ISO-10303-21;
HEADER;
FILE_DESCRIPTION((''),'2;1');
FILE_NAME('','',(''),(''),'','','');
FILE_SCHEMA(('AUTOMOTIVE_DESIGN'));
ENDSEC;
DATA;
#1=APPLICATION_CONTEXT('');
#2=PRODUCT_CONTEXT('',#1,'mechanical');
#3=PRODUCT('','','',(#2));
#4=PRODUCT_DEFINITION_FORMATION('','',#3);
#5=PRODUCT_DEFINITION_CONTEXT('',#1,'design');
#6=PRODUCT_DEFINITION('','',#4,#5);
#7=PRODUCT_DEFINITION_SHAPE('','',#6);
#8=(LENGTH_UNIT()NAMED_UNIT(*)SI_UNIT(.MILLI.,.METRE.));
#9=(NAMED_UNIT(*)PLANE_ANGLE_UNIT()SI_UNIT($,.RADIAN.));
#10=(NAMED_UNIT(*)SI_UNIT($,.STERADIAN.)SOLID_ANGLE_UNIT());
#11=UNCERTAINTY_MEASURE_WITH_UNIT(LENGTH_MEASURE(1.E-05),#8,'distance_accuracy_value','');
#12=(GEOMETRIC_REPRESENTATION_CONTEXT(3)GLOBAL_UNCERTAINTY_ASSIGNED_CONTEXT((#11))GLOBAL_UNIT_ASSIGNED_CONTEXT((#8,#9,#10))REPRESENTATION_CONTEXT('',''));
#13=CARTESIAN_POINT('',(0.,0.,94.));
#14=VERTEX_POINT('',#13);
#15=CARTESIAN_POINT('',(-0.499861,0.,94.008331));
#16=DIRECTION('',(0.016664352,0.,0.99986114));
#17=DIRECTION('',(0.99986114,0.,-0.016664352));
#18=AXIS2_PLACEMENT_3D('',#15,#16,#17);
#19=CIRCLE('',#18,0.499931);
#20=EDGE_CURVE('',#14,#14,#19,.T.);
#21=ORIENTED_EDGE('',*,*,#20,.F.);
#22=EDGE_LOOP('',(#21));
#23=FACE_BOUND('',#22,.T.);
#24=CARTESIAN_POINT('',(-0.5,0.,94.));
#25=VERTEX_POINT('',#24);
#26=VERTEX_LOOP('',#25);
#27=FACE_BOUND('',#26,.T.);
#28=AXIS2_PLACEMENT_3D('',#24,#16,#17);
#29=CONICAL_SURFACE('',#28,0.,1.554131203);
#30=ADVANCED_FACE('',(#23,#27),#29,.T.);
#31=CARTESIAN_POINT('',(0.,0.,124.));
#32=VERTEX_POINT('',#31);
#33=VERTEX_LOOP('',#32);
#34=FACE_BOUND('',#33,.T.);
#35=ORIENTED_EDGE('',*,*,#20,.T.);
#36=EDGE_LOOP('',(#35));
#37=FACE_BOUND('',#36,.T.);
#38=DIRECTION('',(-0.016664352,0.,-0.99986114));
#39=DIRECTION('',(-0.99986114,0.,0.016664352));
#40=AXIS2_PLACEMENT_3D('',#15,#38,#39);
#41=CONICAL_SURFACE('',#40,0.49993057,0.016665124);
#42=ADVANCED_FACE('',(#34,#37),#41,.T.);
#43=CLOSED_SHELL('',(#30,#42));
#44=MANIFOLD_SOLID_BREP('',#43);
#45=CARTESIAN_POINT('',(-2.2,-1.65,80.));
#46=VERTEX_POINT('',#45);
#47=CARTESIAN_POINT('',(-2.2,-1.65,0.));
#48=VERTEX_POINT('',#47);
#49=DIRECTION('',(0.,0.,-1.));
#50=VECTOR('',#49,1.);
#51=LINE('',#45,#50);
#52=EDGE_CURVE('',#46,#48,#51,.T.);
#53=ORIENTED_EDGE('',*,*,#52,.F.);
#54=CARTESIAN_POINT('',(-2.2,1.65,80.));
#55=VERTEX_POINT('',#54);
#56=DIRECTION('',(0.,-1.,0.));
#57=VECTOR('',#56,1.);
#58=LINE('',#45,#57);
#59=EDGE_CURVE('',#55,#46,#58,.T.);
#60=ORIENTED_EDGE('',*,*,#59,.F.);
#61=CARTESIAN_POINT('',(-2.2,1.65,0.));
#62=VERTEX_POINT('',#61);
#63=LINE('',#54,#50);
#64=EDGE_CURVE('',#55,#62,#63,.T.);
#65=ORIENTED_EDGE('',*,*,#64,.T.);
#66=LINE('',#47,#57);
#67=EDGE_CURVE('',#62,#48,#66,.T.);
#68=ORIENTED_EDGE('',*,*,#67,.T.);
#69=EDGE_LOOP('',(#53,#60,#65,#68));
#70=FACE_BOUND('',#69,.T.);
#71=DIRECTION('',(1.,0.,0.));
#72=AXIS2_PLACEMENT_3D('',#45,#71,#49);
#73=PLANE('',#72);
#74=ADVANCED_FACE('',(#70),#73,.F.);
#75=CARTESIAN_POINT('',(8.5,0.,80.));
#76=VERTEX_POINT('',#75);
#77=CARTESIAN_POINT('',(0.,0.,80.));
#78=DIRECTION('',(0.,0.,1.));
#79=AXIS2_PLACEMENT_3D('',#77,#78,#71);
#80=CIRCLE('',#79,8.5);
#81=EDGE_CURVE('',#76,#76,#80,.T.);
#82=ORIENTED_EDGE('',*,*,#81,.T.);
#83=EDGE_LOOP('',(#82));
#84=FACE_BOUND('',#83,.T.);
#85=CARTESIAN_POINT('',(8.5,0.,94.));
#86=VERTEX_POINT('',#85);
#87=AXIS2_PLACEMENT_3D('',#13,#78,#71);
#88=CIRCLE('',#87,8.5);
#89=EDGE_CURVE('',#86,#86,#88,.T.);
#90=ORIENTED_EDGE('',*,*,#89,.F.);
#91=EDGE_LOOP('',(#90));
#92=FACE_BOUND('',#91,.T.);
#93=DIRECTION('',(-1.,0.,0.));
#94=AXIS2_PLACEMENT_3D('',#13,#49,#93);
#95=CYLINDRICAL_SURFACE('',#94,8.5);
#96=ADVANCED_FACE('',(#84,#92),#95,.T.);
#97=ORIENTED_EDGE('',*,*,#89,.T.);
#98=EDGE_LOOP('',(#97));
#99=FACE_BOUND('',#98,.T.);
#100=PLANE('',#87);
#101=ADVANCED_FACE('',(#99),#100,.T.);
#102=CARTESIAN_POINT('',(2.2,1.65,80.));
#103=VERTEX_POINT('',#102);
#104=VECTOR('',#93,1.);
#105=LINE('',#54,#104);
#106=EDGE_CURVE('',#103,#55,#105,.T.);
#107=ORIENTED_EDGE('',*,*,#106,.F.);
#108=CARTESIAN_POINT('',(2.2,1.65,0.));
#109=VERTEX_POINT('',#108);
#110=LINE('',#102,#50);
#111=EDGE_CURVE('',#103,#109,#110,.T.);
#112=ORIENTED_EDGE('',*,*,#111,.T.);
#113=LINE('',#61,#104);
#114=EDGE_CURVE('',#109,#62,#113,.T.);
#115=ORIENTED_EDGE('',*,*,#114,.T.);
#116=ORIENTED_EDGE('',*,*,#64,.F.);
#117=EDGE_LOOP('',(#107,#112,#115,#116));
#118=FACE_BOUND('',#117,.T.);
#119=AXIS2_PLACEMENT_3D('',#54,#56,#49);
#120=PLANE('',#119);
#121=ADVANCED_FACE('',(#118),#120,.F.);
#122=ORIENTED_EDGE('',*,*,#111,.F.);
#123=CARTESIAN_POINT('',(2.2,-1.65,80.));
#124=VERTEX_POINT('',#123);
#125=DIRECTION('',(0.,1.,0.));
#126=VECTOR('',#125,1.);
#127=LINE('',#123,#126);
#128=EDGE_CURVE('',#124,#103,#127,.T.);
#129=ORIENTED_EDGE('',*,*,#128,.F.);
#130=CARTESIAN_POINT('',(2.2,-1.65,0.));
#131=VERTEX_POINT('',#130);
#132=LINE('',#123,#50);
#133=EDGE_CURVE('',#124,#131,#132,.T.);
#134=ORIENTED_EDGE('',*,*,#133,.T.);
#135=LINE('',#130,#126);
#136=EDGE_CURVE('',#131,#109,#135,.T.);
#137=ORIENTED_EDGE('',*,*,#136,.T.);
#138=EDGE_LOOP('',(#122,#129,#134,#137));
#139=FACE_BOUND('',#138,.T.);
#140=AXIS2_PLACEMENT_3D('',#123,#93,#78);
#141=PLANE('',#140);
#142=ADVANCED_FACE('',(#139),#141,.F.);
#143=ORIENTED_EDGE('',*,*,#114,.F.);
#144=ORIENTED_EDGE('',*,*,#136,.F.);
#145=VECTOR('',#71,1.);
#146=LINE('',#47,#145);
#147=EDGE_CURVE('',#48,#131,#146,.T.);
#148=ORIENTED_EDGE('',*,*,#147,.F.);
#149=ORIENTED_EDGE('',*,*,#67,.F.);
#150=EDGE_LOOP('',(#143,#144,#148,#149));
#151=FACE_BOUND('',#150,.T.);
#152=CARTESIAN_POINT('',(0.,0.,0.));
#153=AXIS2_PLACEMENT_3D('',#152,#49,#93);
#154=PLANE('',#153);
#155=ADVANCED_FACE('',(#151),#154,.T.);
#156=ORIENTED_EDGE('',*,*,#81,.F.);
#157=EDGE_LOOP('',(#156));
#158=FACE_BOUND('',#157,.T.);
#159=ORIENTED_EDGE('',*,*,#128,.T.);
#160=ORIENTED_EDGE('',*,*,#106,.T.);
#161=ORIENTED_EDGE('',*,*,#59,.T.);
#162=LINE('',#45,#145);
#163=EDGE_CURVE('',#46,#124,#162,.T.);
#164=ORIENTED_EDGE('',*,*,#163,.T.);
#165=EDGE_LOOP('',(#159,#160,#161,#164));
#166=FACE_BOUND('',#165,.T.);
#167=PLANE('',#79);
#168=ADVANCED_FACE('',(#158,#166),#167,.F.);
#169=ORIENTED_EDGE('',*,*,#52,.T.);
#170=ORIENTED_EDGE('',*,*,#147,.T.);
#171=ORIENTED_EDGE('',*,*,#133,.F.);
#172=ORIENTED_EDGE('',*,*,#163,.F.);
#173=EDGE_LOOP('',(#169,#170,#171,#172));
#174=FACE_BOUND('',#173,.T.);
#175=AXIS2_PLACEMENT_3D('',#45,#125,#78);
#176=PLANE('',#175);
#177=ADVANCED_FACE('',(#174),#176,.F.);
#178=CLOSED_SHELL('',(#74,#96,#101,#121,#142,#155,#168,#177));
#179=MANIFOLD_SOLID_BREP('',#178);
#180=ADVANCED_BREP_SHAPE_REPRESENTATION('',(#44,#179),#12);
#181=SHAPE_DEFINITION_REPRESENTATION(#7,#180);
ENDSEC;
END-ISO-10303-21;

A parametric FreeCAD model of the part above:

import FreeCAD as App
import Part
import Sketcher
from FreeCAD import Vector


def add_polygon(sketch, points):
    """Adds a closed chain of lines whose ends are joined by coincident constraints."""
    first, n = sketch.GeometryCount, len(points)
    for a, b in zip(points, points[1:] + points[:1]):
        sketch.addGeometry(Part.LineSegment(App.Vector(*a, 0), App.Vector(*b, 0)), False)
    for i in range(n):
        sketch.addConstraint(Sketcher.Constraint("Coincident", first + i, 2, first + (i + 1) % n, 1))

doc = App.newDocument("Part")
params = doc.addObject("Spreadsheet::Sheet", "Params")
for row, (alias, value) in enumerate([
    ("sketch1_width", "4.4 mm"),
    ("sketch1_height", "3.3 mm"),
    ("pad1_length", "80 mm"),
    ("sketch2_diameter", "17 mm"),
    ("pad2_length", "14 mm"),
    ("sketch3_height", "30 mm"),
    ("sketch3_width", "0.5 mm"),
    ("revolution_angle", "360 deg"),
], start=1):
    params.set(f"A{row}", alias)
    params.set(f"B{row}", "=" + value)
    params.setAlias(f"B{row}", alias)

body = doc.addObject("PartDesign::Body", "Body")

sketch1 = doc.addObject("Sketcher::SketchObject", "Sketch")
body.addObject(sketch1)
sketch1.AttachmentSupport = (doc.XY_Plane, [""])
sketch1.MapMode = "FlatFace"
add_polygon(sketch1, [(-2.2, 1.6), (-2.2, -1.6), (2.2, -1.6), (2.2, 1.6)])
sketch1.addConstraint([
    Sketcher.Constraint("Vertical", 0),
    Sketcher.Constraint("Horizontal", 1),
    Sketcher.Constraint("Vertical", 2),
    Sketcher.Constraint("Horizontal", 3),
    Sketcher.Constraint("Symmetric", 0, 2, 2, 2, -1, 1),
    Sketcher.Constraint("DistanceX", 1, 1, 1, 2, 4.4),
    Sketcher.Constraint("DistanceY", 0, 2, 0, 1, 3.3),
])
sketch1.setExpression("Constraints[9]", "Params.sketch1_width")
sketch1.setExpression("Constraints[10]", "Params.sketch1_height")
pad1 = doc.addObject("PartDesign::Pad", "Pad")
body.addObject(pad1)
pad1.Profile = sketch1
pad1.setExpression("Length", "Params.pad1_length")

sketch2 = doc.addObject("Sketcher::SketchObject", "Sketch001")
body.addObject(sketch2)
sketch2.AttachmentSupport = (doc.XY_Plane, [""])
sketch2.MapMode = "FlatFace"
sketch2.AttachmentOffset = App.Placement(Vector(0, 0, 80), App.Rotation())
sketch2.addGeometry(Part.Circle(Vector(0, 0, 0), Vector(0, 0, 1), 8), False)
sketch2.addConstraint([
    Sketcher.Constraint("Coincident", 0, 3, -1, 1),
    Sketcher.Constraint("Diameter", 0, 17.0),
])
sketch2.setExpression("Constraints[1]", "Params.sketch2_diameter")
pad2 = doc.addObject("PartDesign::Pad", "Pad001")
body.addObject(pad2)
pad2.Profile = sketch2
pad2.setExpression("Length", "Params.pad2_length")
body2 = doc.addObject("PartDesign::Body", "Body001")

sketch3 = doc.addObject("Sketcher::SketchObject", "Sketch002")
body2.addObject(sketch3)
sketch3.AttachmentSupport = (doc.getObject("XZ_Plane001"), [""])
sketch3.MapMode = "FlatFace"
add_polygon(sketch3, [(0, 124), (0, 94), (-0.5, 94)])
sketch3.addGeometry(Part.LineSegment(Vector(0, 124, 0), Vector(-0.5, 94, 0)), True)
sketch3.addConstraint([
    Sketcher.Constraint("Vertical", 0),
    Sketcher.Constraint("Horizontal", 1),
    Sketcher.Constraint("Coincident", 3, 1, 2, 2),
    Sketcher.Constraint("Coincident", 3, 2, 1, 2),
    Sketcher.Constraint("PointOnObject", 0, 2, -2),
    Sketcher.Constraint("DistanceY", 0, 2, 0, 1, 30.0),
    Sketcher.Constraint("DistanceX", 1, 2, 1, 1, 0.5),
    Sketcher.Constraint("DistanceY", -1, 1, 0, 2, 94.0),
])
sketch3.setExpression("Constraints[8]", "Params.sketch3_height")
sketch3.setExpression("Constraints[9]", "Params.sketch3_width")
revolution = doc.addObject("PartDesign::Revolution", "Revolution")
body2.addObject(revolution)
revolution.Profile = sketch3
revolution.ReferenceAxis = (sketch3, ["Axis0"])
revolution.setExpression("Angle", "Params.revolution_angle")

doc.recompute()
